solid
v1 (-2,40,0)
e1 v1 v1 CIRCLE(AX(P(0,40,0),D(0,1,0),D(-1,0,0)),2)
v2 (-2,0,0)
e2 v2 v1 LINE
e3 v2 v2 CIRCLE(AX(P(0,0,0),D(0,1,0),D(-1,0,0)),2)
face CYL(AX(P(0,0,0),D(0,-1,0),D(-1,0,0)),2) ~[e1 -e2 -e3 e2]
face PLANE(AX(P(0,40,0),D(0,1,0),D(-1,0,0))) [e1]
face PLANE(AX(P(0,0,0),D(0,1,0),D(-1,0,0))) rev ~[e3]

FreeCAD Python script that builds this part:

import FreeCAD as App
import Part
import Sketcher

V = App.Vector
Q = App.Units.Quantity

doc = App.newDocument("Part")
params = doc.addObject("Spreadsheet::Sheet", "Params")
for row, (alias, value) in enumerate([
    ("sketch1_diameter", "4 mm"),
    ("pad1_length", "40 mm"),
], start=1):
    params.set(f"A{row}", alias)
    params.set(f"B{row}", "=" + value)
    params.setAlias(f"B{row}", alias)

body = doc.addObject("PartDesign::Body", "Body")

# Sketch on XZ plane
sketch1 = doc.addObject("Sketcher::SketchObject", "Sketch")
body.addObject(sketch1)
sketch1.AttachmentSupport = (doc.XZ_Plane, [""])
sketch1.MapMode = "FlatFace"
sketch1.addGeometry(Part.Circle(V(0, 0, 0), V(0, 0, 1), 2), False)
sketch1.addConstraint([
    Sketcher.Constraint("Coincident", 0, 3, -1, 1),
    Sketcher.Constraint("Diameter", 0, Q("4 mm")),
])
sketch1.setExpression("Constraints[1]", "Params.sketch1_diameter")
pad1 = doc.addObject("PartDesign::Pad", "Pad")
body.addObject(pad1)
pad1.Profile = sketch1
pad1.setExpression("Length", "Params.pad1_length")
pad1.Reversed = True

doc.recompute()
